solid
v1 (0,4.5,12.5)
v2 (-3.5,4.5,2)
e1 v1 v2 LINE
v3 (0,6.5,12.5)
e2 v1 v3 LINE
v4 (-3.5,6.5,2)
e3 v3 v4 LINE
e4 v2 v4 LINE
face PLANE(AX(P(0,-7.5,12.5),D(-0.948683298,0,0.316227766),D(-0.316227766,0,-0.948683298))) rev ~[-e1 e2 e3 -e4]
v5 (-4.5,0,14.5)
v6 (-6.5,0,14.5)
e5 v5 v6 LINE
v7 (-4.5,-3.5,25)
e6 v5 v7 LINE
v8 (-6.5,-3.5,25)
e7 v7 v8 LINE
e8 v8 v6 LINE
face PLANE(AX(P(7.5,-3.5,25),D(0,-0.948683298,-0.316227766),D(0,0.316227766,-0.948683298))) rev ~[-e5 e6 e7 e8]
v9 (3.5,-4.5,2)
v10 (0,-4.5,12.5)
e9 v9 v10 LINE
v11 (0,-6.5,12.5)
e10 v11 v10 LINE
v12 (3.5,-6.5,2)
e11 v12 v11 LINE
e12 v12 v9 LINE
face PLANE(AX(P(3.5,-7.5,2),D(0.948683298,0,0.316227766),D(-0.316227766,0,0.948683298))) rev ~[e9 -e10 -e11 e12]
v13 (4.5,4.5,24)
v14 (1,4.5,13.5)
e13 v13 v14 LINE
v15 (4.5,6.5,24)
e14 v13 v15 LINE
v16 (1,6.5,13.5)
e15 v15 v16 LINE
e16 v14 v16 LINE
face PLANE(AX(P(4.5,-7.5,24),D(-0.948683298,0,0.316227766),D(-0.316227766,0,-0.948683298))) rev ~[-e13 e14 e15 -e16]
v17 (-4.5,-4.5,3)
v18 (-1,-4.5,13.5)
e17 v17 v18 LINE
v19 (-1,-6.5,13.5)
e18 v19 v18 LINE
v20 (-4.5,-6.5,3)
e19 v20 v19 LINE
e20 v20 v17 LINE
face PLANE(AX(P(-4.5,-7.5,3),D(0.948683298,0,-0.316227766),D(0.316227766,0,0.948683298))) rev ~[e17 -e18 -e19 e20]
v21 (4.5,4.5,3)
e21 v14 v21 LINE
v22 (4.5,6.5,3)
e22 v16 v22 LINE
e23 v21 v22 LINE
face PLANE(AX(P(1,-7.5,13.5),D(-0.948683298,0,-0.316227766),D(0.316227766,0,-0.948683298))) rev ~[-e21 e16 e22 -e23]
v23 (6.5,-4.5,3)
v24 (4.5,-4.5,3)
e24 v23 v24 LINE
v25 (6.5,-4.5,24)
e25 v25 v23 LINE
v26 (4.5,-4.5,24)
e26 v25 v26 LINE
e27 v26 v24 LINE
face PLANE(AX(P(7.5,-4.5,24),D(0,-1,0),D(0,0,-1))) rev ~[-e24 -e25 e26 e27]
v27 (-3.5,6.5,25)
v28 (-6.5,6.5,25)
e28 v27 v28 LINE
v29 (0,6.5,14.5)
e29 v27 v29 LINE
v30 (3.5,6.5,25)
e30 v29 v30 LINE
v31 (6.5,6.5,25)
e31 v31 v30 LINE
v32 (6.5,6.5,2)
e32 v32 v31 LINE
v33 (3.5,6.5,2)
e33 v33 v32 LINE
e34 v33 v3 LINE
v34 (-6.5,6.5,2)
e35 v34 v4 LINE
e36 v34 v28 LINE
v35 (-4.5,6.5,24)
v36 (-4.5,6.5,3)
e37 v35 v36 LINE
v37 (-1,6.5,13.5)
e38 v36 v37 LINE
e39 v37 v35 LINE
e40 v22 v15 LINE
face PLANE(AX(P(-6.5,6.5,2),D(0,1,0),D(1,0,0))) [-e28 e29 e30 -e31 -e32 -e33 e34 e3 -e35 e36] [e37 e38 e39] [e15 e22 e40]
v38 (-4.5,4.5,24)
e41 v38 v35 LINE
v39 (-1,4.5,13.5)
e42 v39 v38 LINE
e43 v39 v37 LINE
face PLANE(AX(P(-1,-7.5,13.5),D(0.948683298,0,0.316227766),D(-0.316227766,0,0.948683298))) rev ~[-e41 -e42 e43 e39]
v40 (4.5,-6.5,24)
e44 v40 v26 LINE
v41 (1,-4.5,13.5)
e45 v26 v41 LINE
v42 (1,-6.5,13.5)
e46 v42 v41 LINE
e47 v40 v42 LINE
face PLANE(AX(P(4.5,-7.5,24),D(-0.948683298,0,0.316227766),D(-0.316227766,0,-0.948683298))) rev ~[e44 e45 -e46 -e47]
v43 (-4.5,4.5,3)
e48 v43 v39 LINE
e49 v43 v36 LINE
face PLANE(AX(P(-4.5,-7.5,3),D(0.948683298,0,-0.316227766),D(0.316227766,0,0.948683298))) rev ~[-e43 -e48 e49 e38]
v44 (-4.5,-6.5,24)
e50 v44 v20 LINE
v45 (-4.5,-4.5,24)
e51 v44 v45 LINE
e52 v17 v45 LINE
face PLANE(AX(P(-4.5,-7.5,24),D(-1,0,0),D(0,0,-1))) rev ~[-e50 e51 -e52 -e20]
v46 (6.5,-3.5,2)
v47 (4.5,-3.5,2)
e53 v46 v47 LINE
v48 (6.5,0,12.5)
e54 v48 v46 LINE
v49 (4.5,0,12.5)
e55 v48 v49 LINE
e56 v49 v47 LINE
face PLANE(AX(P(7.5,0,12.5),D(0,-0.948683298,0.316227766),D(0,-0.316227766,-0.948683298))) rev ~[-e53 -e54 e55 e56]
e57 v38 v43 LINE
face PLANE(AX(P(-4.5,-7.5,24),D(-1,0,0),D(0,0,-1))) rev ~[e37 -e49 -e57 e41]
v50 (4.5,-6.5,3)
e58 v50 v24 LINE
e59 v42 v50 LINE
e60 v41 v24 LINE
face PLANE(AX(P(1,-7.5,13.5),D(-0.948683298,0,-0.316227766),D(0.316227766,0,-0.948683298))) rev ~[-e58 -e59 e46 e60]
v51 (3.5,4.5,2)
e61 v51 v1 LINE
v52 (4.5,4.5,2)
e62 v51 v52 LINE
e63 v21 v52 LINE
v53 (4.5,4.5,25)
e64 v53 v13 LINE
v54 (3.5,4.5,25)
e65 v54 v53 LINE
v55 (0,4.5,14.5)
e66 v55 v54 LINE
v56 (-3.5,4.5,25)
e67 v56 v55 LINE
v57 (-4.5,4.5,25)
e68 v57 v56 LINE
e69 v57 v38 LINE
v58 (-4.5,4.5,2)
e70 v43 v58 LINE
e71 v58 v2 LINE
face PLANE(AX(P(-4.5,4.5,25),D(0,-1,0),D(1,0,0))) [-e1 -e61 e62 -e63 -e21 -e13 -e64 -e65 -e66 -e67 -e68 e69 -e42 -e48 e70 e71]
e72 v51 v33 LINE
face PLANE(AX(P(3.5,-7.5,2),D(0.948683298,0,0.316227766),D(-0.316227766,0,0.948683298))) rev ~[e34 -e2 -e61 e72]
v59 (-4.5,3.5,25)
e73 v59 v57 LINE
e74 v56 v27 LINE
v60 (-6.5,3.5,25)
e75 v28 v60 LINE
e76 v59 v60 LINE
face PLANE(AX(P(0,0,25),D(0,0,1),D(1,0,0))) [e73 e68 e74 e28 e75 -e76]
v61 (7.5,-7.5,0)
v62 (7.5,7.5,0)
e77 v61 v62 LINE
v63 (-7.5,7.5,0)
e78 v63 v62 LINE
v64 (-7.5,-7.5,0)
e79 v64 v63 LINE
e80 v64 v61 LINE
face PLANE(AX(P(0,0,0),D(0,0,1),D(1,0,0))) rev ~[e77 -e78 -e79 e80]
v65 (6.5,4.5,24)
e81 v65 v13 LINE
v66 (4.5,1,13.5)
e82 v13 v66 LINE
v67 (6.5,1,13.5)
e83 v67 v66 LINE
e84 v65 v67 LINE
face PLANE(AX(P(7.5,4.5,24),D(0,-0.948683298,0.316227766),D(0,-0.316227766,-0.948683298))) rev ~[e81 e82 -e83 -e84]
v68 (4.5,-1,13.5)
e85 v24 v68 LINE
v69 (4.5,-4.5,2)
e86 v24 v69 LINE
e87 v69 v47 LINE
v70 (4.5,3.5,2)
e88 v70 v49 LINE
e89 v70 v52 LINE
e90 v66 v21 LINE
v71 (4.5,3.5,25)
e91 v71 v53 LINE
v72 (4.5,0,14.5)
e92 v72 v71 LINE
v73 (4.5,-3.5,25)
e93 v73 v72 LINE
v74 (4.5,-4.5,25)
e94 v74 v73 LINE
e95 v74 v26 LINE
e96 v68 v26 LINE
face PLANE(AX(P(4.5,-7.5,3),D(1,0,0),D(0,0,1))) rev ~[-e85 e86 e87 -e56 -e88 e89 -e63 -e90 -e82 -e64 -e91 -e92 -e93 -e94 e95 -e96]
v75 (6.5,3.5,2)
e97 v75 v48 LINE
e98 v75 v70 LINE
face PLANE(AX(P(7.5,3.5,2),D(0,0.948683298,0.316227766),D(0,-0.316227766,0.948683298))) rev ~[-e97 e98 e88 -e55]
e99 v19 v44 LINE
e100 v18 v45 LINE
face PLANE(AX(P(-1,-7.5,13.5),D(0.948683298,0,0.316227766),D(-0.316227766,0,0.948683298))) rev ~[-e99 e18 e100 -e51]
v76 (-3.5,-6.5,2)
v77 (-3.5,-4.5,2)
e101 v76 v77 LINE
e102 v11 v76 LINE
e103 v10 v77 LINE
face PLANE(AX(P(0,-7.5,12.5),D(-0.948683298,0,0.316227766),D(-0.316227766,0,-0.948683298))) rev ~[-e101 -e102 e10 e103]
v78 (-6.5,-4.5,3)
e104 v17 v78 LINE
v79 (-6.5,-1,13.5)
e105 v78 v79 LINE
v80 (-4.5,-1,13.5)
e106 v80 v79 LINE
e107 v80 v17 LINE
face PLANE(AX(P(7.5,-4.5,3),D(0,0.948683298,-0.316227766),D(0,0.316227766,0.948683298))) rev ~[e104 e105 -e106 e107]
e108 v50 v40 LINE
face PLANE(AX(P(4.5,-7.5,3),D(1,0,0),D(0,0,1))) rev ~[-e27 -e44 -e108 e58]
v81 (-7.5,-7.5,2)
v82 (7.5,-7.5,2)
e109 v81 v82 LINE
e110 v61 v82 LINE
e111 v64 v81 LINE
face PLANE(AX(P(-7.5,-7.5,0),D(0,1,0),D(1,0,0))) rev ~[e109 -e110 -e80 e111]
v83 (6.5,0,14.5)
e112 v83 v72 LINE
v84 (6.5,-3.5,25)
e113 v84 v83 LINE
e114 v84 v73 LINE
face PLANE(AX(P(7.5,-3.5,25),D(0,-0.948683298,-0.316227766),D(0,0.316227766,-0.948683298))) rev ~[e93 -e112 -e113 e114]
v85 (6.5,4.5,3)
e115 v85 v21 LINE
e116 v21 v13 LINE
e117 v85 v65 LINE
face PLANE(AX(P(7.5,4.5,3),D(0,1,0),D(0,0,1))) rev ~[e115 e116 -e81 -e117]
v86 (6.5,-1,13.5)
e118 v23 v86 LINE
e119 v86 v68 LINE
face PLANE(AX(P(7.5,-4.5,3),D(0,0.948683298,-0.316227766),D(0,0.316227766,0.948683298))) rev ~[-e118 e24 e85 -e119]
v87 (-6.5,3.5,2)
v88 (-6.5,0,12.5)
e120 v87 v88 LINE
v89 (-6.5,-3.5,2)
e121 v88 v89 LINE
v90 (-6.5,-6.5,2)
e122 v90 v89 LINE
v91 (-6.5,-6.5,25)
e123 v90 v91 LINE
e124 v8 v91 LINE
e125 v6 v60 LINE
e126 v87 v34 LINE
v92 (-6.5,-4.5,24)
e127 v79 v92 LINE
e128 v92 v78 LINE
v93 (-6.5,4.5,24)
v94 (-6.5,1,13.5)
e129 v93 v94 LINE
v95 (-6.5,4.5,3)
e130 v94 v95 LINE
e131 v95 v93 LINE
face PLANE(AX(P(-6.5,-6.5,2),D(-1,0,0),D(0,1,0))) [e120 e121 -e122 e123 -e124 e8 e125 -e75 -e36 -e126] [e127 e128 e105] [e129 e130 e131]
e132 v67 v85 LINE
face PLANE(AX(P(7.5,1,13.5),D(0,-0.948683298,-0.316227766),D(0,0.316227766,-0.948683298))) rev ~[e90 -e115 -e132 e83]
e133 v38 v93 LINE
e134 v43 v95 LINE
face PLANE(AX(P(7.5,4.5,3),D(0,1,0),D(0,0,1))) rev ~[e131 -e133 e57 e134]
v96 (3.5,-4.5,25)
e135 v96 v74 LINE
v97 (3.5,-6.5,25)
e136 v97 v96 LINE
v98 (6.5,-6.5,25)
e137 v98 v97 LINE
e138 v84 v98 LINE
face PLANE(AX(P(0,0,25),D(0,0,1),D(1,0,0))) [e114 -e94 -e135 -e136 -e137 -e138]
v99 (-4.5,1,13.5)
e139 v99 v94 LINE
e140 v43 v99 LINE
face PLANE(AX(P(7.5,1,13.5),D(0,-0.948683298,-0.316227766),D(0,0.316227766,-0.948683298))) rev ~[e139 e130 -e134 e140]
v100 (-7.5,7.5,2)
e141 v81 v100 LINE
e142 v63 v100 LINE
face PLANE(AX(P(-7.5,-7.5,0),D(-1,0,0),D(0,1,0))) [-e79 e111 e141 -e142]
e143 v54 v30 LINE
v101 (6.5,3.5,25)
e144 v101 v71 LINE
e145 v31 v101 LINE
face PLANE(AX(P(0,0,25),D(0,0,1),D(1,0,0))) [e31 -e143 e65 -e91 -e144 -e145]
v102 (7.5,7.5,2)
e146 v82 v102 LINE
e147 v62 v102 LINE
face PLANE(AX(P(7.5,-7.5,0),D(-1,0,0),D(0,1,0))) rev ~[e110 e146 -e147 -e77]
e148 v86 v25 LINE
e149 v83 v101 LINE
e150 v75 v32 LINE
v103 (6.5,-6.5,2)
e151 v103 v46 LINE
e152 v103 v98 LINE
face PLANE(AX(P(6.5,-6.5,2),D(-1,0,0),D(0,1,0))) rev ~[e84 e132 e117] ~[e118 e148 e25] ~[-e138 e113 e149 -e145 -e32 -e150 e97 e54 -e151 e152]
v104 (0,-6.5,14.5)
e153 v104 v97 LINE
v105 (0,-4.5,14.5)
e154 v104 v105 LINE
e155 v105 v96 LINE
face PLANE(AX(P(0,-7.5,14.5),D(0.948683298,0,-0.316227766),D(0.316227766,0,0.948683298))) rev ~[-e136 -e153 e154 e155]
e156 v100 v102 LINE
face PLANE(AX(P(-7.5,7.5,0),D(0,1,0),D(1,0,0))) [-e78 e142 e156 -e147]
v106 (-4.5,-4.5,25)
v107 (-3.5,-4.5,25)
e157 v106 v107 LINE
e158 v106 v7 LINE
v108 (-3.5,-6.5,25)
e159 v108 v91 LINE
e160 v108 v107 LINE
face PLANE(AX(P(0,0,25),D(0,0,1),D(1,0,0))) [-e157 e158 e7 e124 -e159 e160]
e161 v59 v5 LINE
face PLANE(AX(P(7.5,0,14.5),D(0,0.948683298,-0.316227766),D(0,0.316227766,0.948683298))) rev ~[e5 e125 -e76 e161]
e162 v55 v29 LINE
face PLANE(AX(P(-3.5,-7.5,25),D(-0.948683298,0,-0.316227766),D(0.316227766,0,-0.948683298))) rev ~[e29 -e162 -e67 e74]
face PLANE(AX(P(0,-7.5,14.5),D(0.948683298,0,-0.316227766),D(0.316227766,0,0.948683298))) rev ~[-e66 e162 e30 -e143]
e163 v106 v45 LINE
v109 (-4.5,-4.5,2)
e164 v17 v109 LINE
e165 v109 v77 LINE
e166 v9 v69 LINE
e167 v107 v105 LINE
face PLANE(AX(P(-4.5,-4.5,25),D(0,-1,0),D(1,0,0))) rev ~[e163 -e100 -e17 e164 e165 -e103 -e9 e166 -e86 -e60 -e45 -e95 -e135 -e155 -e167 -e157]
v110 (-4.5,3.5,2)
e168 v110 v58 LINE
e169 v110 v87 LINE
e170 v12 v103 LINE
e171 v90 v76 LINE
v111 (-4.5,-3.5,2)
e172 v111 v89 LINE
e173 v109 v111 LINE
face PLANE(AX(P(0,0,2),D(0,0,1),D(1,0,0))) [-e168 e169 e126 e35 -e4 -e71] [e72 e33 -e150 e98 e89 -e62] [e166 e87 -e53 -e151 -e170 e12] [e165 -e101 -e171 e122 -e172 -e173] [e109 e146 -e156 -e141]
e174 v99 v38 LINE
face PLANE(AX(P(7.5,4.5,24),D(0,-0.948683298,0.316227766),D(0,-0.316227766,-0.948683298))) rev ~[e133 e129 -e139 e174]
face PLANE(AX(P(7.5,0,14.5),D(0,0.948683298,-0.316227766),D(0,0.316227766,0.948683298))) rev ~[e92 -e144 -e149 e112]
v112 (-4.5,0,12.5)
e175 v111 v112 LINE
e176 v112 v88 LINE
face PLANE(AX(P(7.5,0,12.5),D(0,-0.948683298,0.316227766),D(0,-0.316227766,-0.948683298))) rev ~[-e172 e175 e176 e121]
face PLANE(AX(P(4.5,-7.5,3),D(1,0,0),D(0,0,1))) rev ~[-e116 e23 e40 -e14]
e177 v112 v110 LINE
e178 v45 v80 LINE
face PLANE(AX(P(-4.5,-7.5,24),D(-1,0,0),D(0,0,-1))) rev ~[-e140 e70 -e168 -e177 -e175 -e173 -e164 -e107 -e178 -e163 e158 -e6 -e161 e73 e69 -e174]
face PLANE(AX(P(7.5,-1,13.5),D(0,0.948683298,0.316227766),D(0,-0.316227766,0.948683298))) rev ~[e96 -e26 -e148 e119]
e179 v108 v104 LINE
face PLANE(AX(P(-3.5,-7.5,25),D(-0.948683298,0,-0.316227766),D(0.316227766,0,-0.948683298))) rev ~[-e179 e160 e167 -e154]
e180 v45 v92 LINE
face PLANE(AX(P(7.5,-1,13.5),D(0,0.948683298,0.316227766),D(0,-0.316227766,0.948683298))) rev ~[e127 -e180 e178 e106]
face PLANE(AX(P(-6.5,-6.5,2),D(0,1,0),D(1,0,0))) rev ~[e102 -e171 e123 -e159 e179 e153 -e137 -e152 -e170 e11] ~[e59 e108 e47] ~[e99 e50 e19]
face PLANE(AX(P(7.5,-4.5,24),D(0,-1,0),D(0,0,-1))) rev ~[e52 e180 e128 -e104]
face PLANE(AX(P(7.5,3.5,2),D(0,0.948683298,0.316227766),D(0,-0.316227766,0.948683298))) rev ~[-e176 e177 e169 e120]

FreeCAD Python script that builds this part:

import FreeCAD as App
import Part
import Sketcher

V = App.Vector

doc = App.newDocument("Part")
body = doc.addObject("PartDesign::Body", "Body")

sketch1 = doc.addObject("Sketcher::SketchObject", "Sketch")
body.addObject(sketch1)
sketch1.AttachmentSupport = (doc.XY_Plane, [""])
sketch1.MapMode = "FlatFace"
sketch1.addGeometry([
    Part.LineSegment(V(-8, 8, 0), V(-8, -8, 0)),
    Part.LineSegment(V(-8, -8, 0), V(8, -8, 0)),
    Part.LineSegment(V(8, -8, 0), V(8, 8, 0)),
    Part.LineSegment(V(8, 8, 0), V(-8, 8, 0)),
], False)
sketch1.addConstraint([
    Sketcher.Constraint("Coincident", 0, 2, 1, 1),
    Sketcher.Constraint("Coincident", 1, 2, 2, 1),
    Sketcher.Constraint("Coincident", 2, 2, 3, 1),
    Sketcher.Constraint("Coincident", 3, 2, 0, 1),
    Sketcher.Constraint("Vertical", 0),
    Sketcher.Constraint("Horizontal", 1),
    Sketcher.Constraint("Vertical", 2),
    Sketcher.Constraint("Horizontal", 3),
    Sketcher.Constraint("Symmetric", 0, 2, 2, 2, -1, 1),
    Sketcher.Constraint("Equal", 3, 0),
    Sketcher.Constraint("DistanceX", 1, 1, 1, 2, 15.0),
])
pad1 = doc.addObject("PartDesign::Pad", "Pad")
body.addObject(pad1)
pad1.Profile = sketch1
pad1.Length = 25

sketch2 = doc.addObject("Sketcher::SketchObject", "Sketch001")
body.addObject(sketch2)
sketch2.AttachmentSupport = (doc.XY_Plane, [""])
sketch2.MapMode = "FlatFace"
sketch2.AttachmentOffset = App.Placement(V(0, 0, 25), App.Rotation())
sketch2.addGeometry([
    Part.LineSegment(V(-4, 4, 0), V(-4, -4, 0)),
    Part.LineSegment(V(-4, -4, 0), V(4, -4, 0)),
    Part.LineSegment(V(4, -4, 0), V(4, 4, 0)),
    Part.LineSegment(V(4, 4, 0), V(-4, 4, 0)),
], False)
sketch2.addConstraint([
    Sketcher.Constraint("Coincident", 0, 2, 1, 1),
    Sketcher.Constraint("Coincident", 1, 2, 2, 1),
    Sketcher.Constraint("Coincident", 2, 2, 3, 1),
    Sketcher.Constraint("Coincident", 3, 2, 0, 1),
    Sketcher.Constraint("Vertical", 0),
    Sketcher.Constraint("Horizontal", 1),
    Sketcher.Constraint("Vertical", 2),
    Sketcher.Constraint("Horizontal", 3),
    Sketcher.Constraint("Symmetric", 0, 2, 2, 2, -1, 1),
    Sketcher.Constraint("Equal", 3, 0),
    Sketcher.Constraint("DistanceX", 1, 1, 1, 2, 9.0),
])
pocket1 = doc.addObject("PartDesign::Pocket", "Pocket")
body.addObject(pocket1)
pocket1.Profile = sketch2
pocket1.Length = 23

sketch3 = doc.addObject("Sketcher::SketchObject", "Sketch002")
body.addObject(sketch3)
sketch3.AttachmentSupport = (doc.XZ_Plane, [""])
sketch3.MapMode = "FlatFace"
sketch3.AttachmentOffset = App.Placement(V(0, 0, 7.5), App.Rotation())
sketch3.addGeometry([
    Part.LineSegment(V(4, 25, 0), V(-4, 25, 0)),
    Part.LineSegment(V(-4, 25, 0), V(0, 14, 0)),
    Part.LineSegment(V(0, 14, 0), V(4, 25, 0)),
    Part.LineSegment(V(0, 12, 0), V(-4, 2, 0)),
    Part.LineSegment(V(-4, 2, 0), V(4, 2, 0)),
    Part.LineSegment(V(4, 2, 0), V(0, 12, 0)),
    Part.LineSegment(V(-1, 14, 0), V(-4, 24, 0)),
    Part.LineSegment(V(-4, 24, 0), V(-4, 3, 0)),
    Part.LineSegment(V(-4, 3, 0), V(-1, 14, 0)),
    Part.LineSegment(V(4, 3, 0), V(4, 24, 0)),
    Part.LineSegment(V(4, 24, 0), V(1, 14, 0)),
    Part.LineSegment(V(1, 14, 0), V(4, 3, 0)),
], False)
sketch3.addConstraint([
    Sketcher.Constraint("Coincident", 0, 2, 1, 1),
    Sketcher.Constraint("Coincident", 1, 2, 2, 1),
    Sketcher.Constraint("Coincident", 2, 2, 0, 1),
    Sketcher.Constraint("Coincident", 3, 2, 4, 1),
    Sketcher.Constraint("Coincident", 4, 2, 5, 1),
    Sketcher.Constraint("Coincident", 5, 2, 3, 1),
    Sketcher.Constraint("Coincident", 6, 2, 7, 1),
    Sketcher.Constraint("Coincident", 7, 2, 8, 1),
    Sketcher.Constraint("Coincident", 8, 2, 6, 1),
    Sketcher.Constraint("Coincident", 9, 2, 10, 1),
    Sketcher.Constraint("Coincident", 10, 2, 11, 1),
    Sketcher.Constraint("Coincident", 11, 2, 9, 1),
    Sketcher.Constraint("Horizontal", 0),
    Sketcher.Constraint("Horizontal", 4),
    Sketcher.Constraint("Vertical", 7),
    Sketcher.Constraint("Vertical", 9),
    Sketcher.Constraint("Symmetric", 6, 2, 9, 2, -2),
    Sketcher.Constraint("Symmetric", 8, 2, 10, 2, -2),
    Sketcher.Constraint("PointOnObject", 1, 2, -2),
    Sketcher.Constraint("PointOnObject", 5, 2, -2),
    Sketcher.Constraint("Parallel", 2, 3),
    Sketcher.Constraint("Parallel", 1, 5),
    Sketcher.Constraint("Parallel", 5, 6),
    Sketcher.Constraint("Parallel", 3, 8),
    Sketcher.Constraint("Parallel", 8, 10),
    Sketcher.Constraint("Parallel", 6, 11),
    Sketcher.Constraint("Vertical", 0, 2, 3, 2),
    Sketcher.Constraint("Equal", 5, 6),
    Sketcher.Constraint("DistanceX", 0, 2, 0, 1, 7.0),
    Sketcher.Constraint("DistanceY", 7, 2, 7, 1, 21.0),
    Sketcher.Constraint("DistanceY", -1, 1, 0, 2, 25.0),
    Sketcher.Constraint("DistanceY", -1, 1, 3, 2, 2.0),
    Sketcher.Constraint("DistanceY", -1, 1, 6, 2, 24.0),
    Sketcher.Constraint("DistanceX", 8, 2, -1, 1, 1.0),
])
pocket2 = doc.addObject("PartDesign::Pocket", "Pocket001")
body.addObject(pocket2)
pocket2.Profile = sketch3
pocket2.Type = "ThroughAll"

sketch4 = doc.addObject("Sketcher::SketchObject", "Sketch003")
body.addObject(sketch4)
sketch4.AttachmentSupport = (doc.YZ_Plane, [""])
sketch4.MapMode = "FlatFace"
sketch4.AttachmentOffset = App.Placement(V(0, 0, 7.5), App.Rotation())
sketch4.addGeometry([
    Part.LineSegment(V(4, 25, 0), V(-4, 25, 0)),
    Part.LineSegment(V(-4, 25, 0), V(0, 14, 0)),
    Part.LineSegment(V(0, 14, 0), V(4, 25, 0)),
    Part.LineSegment(V(0, 12, 0), V(-4, 2, 0)),
    Part.LineSegment(V(-4, 2, 0), V(4, 2, 0)),
    Part.LineSegment(V(4, 2, 0), V(0, 12, 0)),
    Part.LineSegment(V(4, 3, 0), V(4, 24, 0)),
    Part.LineSegment(V(4, 24, 0), V(1, 14, 0)),
    Part.LineSegment(V(1, 14, 0), V(4, 3, 0)),
    Part.LineSegment(V(-1, 14, 0), V(-4, 24, 0)),
    Part.LineSegment(V(-4, 24, 0), V(-4, 3, 0)),
    Part.LineSegment(V(-4, 3, 0), V(-1, 14, 0)),
], False)
sketch4.addConstraint([
    Sketcher.Constraint("Coincident", 0, 2, 1, 1),
    Sketcher.Constraint("Coincident", 1, 2, 2, 1),
    Sketcher.Constraint("Coincident", 2, 2, 0, 1),
    Sketcher.Constraint("Coincident", 3, 2, 4, 1),
    Sketcher.Constraint("Coincident", 4, 2, 5, 1),
    Sketcher.Constraint("Coincident", 5, 2, 3, 1),
    Sketcher.Constraint("Coincident", 6, 2, 7, 1),
    Sketcher.Constraint("Coincident", 7, 2, 8, 1),
    Sketcher.Constraint("Coincident", 8, 2, 6, 1),
    Sketcher.Constraint("Coincident", 9, 2, 10, 1),
    Sketcher.Constraint("Coincident", 10, 2, 11, 1),
    Sketcher.Constraint("Coincident", 11, 2, 9, 1),
    Sketcher.Constraint("Horizontal", 0),
    Sketcher.Constraint("Horizontal", 4),
    Sketcher.Constraint("Vertical", 6),
    Sketcher.Constraint("Vertical", 10),
    Sketcher.Constraint("Symmetric", 6, 2, 9, 2, -2),
    Sketcher.Constraint("Symmetric", 7, 2, 11, 2, -2),
    Sketcher.Constraint("PointOnObject", 1, 2, -2),
    Sketcher.Constraint("PointOnObject", 5, 2, -2),
    Sketcher.Constraint("Parallel", 2, 3),
    Sketcher.Constraint("Parallel", 1, 5),
    Sketcher.Constraint("Parallel", 3, 7),
    Sketcher.Constraint("Parallel", 5, 8),
    Sketcher.Constraint("Parallel", 8, 9),
    Sketcher.Constraint("Parallel", 7, 11),
    Sketcher.Constraint("Vertical", 0, 2, 3, 2),
    Sketcher.Constraint("Equal", 5, 7),
    Sketcher.Constraint("DistanceX", 0, 2, 0, 1, 7.0),
    Sketcher.Constraint("DistanceY", 6, 1, 6, 2, 21.0),
    Sketcher.Constraint("DistanceY", -1, 1, 0, 2, 25.0),
    Sketcher.Constraint("DistanceY", -1, 1, 3, 2, 2.0),
    Sketcher.Constraint("DistanceY", -1, 1, 6, 2, 24.0),
    Sketcher.Constraint("DistanceX", -1, 1, 7, 2, 1.0),
])
pocket3 = doc.addObject("PartDesign::Pocket", "Pocket002")
body.addObject(pocket3)
pocket3.Profile = sketch4
pocket3.Type = "ThroughAll"

sketch5 = doc.addObject("Sketcher::SketchObject", "Sketch004")
body.addObject(sketch5)
sketch5.AttachmentSupport = (doc.XY_Plane, [""])
sketch5.MapMode = "FlatFace"
sketch5.AttachmentOffset = App.Placement(V(0, 0, 2), App.Rotation())
sketch5.addGeometry([
    Part.LineSegment(V(-8, 8, 0), V(-8, -8, 0)),
    Part.LineSegment(V(-8, -8, 0), V(8, -8, 0)),
    Part.LineSegment(V(8, -8, 0), V(8, 8, 0)),
    Part.LineSegment(V(8, 8, 0), V(-8, 8, 0)),
    Part.LineSegment(V(6, -6, 0), V(-6, -6, 0)),
    Part.LineSegment(V(-6, -6, 0), V(-6, 6, 0)),
    Part.LineSegment(V(-6, 6, 0), V(6, 6, 0)),
    Part.LineSegment(V(6, 6, 0), V(6, -6, 0)),
], False)
sketch5.addConstraint([
    Sketcher.Constraint("Coincident", 0, 2, 1, 1),
    Sketcher.Constraint("Coincident", 1, 2, 2, 1),
    Sketcher.Constraint("Coincident", 2, 2, 3, 1),
    Sketcher.Constraint("Coincident", 3, 2, 0, 1),
    Sketcher.Constraint("Coincident", 4, 2, 5, 1),
    Sketcher.Constraint("Coincident", 5, 2, 6, 1),
    Sketcher.Constraint("Coincident", 6, 2, 7, 1),
    Sketcher.Constraint("Coincident", 7, 2, 4, 1),
    Sketcher.Constraint("Vertical", 0),
    Sketcher.Constraint("Horizontal", 1),
    Sketcher.Constraint("Vertical", 2),
    Sketcher.Constraint("Horizontal", 3),
    Sketcher.Constraint("Horizontal", 4),
    Sketcher.Constraint("Vertical", 5),
    Sketcher.Constraint("Horizontal", 6),
    Sketcher.Constraint("Vertical", 7),
    Sketcher.Constraint("Symmetric", 0, 2, 2, 2, -1, 1),
    Sketcher.Constraint("Symmetric", 4, 2, 6, 2, -1, 1),
    Sketcher.Constraint("Equal", 3, 0),
    Sketcher.Constraint("Equal", 6, 5),
    Sketcher.Constraint("DistanceX", 1, 1, 1, 2, 15.0),
    Sketcher.Constraint("DistanceX", 4, 2, 4, 1, 13.0),
])
pocket4 = doc.addObject("PartDesign::Pocket", "Pocket003")
body.addObject(pocket4)
pocket4.Profile = sketch5
pocket4.Length = 40.4
pocket4.Reversed = True

doc.recompute()
